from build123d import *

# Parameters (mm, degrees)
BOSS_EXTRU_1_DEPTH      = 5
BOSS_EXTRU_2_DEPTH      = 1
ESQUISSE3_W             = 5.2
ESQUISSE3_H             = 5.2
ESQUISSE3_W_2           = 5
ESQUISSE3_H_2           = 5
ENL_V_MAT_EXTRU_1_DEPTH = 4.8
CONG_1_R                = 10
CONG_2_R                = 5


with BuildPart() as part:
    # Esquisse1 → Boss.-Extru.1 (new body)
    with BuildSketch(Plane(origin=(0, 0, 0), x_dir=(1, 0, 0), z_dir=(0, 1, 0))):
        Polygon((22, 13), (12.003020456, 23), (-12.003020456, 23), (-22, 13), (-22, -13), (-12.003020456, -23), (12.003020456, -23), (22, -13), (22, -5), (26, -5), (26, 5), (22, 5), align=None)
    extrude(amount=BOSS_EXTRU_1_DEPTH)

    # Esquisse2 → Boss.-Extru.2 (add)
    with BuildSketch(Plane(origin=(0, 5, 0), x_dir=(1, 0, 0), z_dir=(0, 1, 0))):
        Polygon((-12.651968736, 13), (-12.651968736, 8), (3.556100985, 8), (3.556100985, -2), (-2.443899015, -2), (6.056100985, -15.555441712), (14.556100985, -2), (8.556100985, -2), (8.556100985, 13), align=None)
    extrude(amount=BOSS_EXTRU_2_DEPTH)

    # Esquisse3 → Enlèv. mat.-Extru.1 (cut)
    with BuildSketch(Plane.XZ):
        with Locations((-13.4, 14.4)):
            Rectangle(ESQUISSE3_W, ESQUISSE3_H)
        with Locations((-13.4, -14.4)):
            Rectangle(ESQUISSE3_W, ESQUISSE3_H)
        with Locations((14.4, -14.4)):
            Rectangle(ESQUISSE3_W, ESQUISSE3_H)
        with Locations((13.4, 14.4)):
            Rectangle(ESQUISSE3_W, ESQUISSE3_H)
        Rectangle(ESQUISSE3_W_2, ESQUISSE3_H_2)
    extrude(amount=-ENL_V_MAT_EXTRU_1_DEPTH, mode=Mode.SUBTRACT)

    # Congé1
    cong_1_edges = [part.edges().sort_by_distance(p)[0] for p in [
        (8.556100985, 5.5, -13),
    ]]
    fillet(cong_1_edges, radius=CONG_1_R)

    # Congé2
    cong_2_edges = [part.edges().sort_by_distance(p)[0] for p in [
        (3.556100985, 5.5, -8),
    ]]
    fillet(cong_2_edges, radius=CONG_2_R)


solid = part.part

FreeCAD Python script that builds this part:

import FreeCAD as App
import Part
import Sketcher
from FreeCAD import Vector
Q = App.Units.Quantity


def edges_at(feature, points):
    """Names of the edges that pass closest to the given points."""
    edges = feature.Shape.Edges
    near = lambda p: min(range(len(edges)), key=lambda i: edges[i].distToShape(Part.Vertex(*p))[0])
    return sorted({f"Edge{near(p) + 1}" for p in points})

doc = App.newDocument("Part")
params = doc.addObject("Spreadsheet::Sheet", "Params")
for row, (alias, value) in enumerate([
    ("sketch1_width", "4 mm"),
    ("sketch1_height", "26 mm"),
    ("sketch1_height2", "8 mm"),
    ("sketch1_length", "14.14 mm"),
    ("pad1_length", "5 mm"),
    ("sketch2_width", "6 mm"),
    ("sketch2_height", "5 mm"),
    ("sketch2_height2", "10 mm"),
    ("sketch2_length", "16 mm"),
    ("pad2_length", "1 mm"),
    ("sketch3_width", "5 mm"),
    ("sketch3_width2", "5.2 mm"),
    ("pocket1_length", "4.8 mm"),
    ("fillet_radius", "10 mm"),
    ("fillet2_radius", "5 mm"),
], start=1):
    params.set(f"A{row}", alias)
    params.set(f"B{row}", "=" + value)
    params.setAlias(f"B{row}", alias)

body = doc.addObject("PartDesign::Body", "Body")

sketch1 = body.newObject("Sketcher::SketchObject", "Sketch")
sketch1.AttachmentSupport = (doc.getObject("XZ_Plane"), [""])
sketch1.MapMode = "FlatFace"
sketch1.addGeometry(Part.LineSegment(Vector(22, -13, 0), Vector(12, -23, 0)), False)
sketch1.addGeometry(Part.LineSegment(Vector(12, -23, 0), Vector(-12, -23, 0)), False)
sketch1.addGeometry(Part.LineSegment(Vector(-12, -23, 0), Vector(-22, -13, 0)), False)
sketch1.addGeometry(Part.LineSegment(Vector(-22, -13, 0), Vector(-22, 13, 0)), False)
sketch1.addGeometry(Part.LineSegment(Vector(-22, 13, 0), Vector(-12, 23, 0)), False)
sketch1.addGeometry(Part.LineSegment(Vector(-12, 23, 0), Vector(12, 23, 0)), False)
sketch1.addGeometry(Part.LineSegment(Vector(12, 23, 0), Vector(22, 13, 0)), False)
sketch1.addGeometry(Part.LineSegment(Vector(22, 13, 0), Vector(22, 5, 0)), False)
sketch1.addGeometry(Part.LineSegment(Vector(22, 5, 0), Vector(26, 5, 0)), False)
sketch1.addGeometry(Part.LineSegment(Vector(26, 5, 0), Vector(26, -5, 0)), False)
sketch1.addGeometry(Part.LineSegment(Vector(26, -5, 0), Vector(22, -5, 0)), False)
sketch1.addGeometry(Part.LineSegment(Vector(22, -5, 0), Vector(22, -13, 0)), False)
sketch1.addConstraint(Sketcher.Constraint("Coincident", 0, 2, 1, 1))
sketch1.addConstraint(Sketcher.Constraint("Coincident", 1, 2, 2, 1))
sketch1.addConstraint(Sketcher.Constraint("Coincident", 2, 2, 3, 1))
sketch1.addConstraint(Sketcher.Constraint("Coincident", 3, 2, 4, 1))
sketch1.addConstraint(Sketcher.Constraint("Coincident", 4, 2, 5, 1))
sketch1.addConstraint(Sketcher.Constraint("Coincident", 5, 2, 6, 1))
sketch1.addConstraint(Sketcher.Constraint("Coincident", 6, 2, 7, 1))
sketch1.addConstraint(Sketcher.Constraint("Coincident", 7, 2, 8, 1))
sketch1.addConstraint(Sketcher.Constraint("Coincident", 8, 2, 9, 1))
sketch1.addConstraint(Sketcher.Constraint("Coincident", 9, 2, 10, 1))
sketch1.addConstraint(Sketcher.Constraint("Coincident", 10, 2, 11, 1))
sketch1.addConstraint(Sketcher.Constraint("Coincident", 11, 2, 0, 1))
sketch1.addConstraint(Sketcher.Constraint("Horizontal", 1))
sketch1.addConstraint(Sketcher.Constraint("Vertical", 3))
sketch1.addConstraint(Sketcher.Constraint("Horizontal", 5))
sketch1.addConstraint(Sketcher.Constraint("Vertical", 7))
sketch1.addConstraint(Sketcher.Constraint("Horizontal", 8))
sketch1.addConstraint(Sketcher.Constraint("Vertical", 9))
sketch1.addConstraint(Sketcher.Constraint("Horizontal", 10))
sketch1.addConstraint(Sketcher.Constraint("Vertical", 11))
sketch1.addConstraint(Sketcher.Constraint("Symmetric", 0, 2, 4, 2, -1, 1))
sketch1.addConstraint(Sketcher.Constraint("Symmetric", 2, 2, 6, 2, -1, 1))
sketch1.addConstraint(Sketcher.Constraint("Symmetric", 3, 2, 11, 2, -1, 1))
sketch1.addConstraint(Sketcher.Constraint("Parallel", 2, 6))
sketch1.addConstraint(Sketcher.Constraint("Horizontal", 3, 2, 6, 2))
sketch1.addConstraint(Sketcher.Constraint("Vertical", 1, 2, 4, 2))
sketch1.addConstraint(Sketcher.Constraint("Equal", 7, 11))
sketch1.addConstraint(Sketcher.Constraint("DistanceX", 8, 1, 8, 2, Q("4 mm")))
sketch1.addConstraint(Sketcher.Constraint("DistanceY", 3, 1, 3, 2, Q("26 mm")))
sketch1.addConstraint(Sketcher.Constraint("DistanceY", 7, 2, 7, 1, Q("8 mm")))
sketch1.addConstraint(Sketcher.Constraint("DistanceY", 0, 2, -1, 1, Q("23 mm")))
sketch1.addConstraint(Sketcher.Constraint("DistanceX", 2, 2, -1, 1, Q("22 mm")))
sketch1.addConstraint(Sketcher.Constraint("Distance", 0, Q("14.14 mm")))
sketch1.setExpression("Constraints[27]", "Params.sketch1_width")
sketch1.setExpression("Constraints[28]", "Params.sketch1_height")
sketch1.setExpression("Constraints[29]", "Params.sketch1_height2")
sketch1.setExpression("Constraints[32]", "Params.sketch1_length")
pad1 = body.newObject("PartDesign::Pad", "Pad")
pad1.Profile = sketch1
pad1.setExpression("Length", "Params.pad1_length")
pad1.Reversed = True

sketch2 = body.newObject("Sketcher::SketchObject", "Sketch001")
sketch2.AttachmentSupport = (doc.getObject("XZ_Plane"), [""])
sketch2.MapMode = "FlatFace"
sketch2.AttachmentOffset = App.Placement(Vector(0, 0, -5), App.Rotation())
sketch2.addGeometry(Part.LineSegment(Vector(-13, -13, 0), Vector(-13, -8, 0)), False)
sketch2.addGeometry(Part.LineSegment(Vector(-13, -8, 0), Vector(4, -8, 0)), False)
sketch2.addGeometry(Part.LineSegment(Vector(4, -8, 0), Vector(4, 2, 0)), False)
sketch2.addGeometry(Part.LineSegment(Vector(4, 2, 0), Vector(-2, 2, 0)), False)
sketch2.addGeometry(Part.LineSegment(Vector(-2, 2, 0), Vector(6, 16, 0)), False)
sketch2.addGeometry(Part.LineSegment(Vector(6, 16, 0), Vector(15, 2, 0)), False)
sketch2.addGeometry(Part.LineSegment(Vector(15, 2, 0), Vector(9, 2, 0)), False)
sketch2.addGeometry(Part.LineSegment(Vector(9, 2, 0), Vector(9, -13, 0)), False)
sketch2.addGeometry(Part.LineSegment(Vector(9, -13, 0), Vector(-13, -13, 0)), False)
sketch2.addConstraint(Sketcher.Constraint("Coincident", 0, 2, 1, 1))
sketch2.addConstraint(Sketcher.Constraint("Coincident", 1, 2, 2, 1))
sketch2.addConstraint(Sketcher.Constraint("Coincident", 2, 2, 3, 1))
sketch2.addConstraint(Sketcher.Constraint("Coincident", 3, 2, 4, 1))
sketch2.addConstraint(Sketcher.Constraint("Coincident", 4, 2, 5, 1))
sketch2.addConstraint(Sketcher.Constraint("Coincident", 5, 2, 6, 1))
sketch2.addConstraint(Sketcher.Constraint("Coincident", 6, 2, 7, 1))
sketch2.addConstraint(Sketcher.Constraint("Coincident", 7, 2, 8, 1))
sketch2.addConstraint(Sketcher.Constraint("Coincident", 8, 2, 0, 1))
sketch2.addConstraint(Sketcher.Constraint("Vertical", 0))
sketch2.addConstraint(Sketcher.Constraint("Horizontal", 1))
sketch2.addConstraint(Sketcher.Constraint("Vertical", 2))
sketch2.addConstraint(Sketcher.Constraint("Horizontal", 3))
sketch2.addConstraint(Sketcher.Constraint("Horizontal", 6))
sketch2.addConstraint(Sketcher.Constraint("Vertical", 7))
sketch2.addConstraint(Sketcher.Constraint("Horizontal", 8))
sketch2.addConstraint(Sketcher.Constraint("Horizontal", 3, 2, 5, 2))
sketch2.addConstraint(Sketcher.Constraint("Equal", 3, 6))
sketch2.addConstraint(Sketcher.Constraint("Equal", 4, 5))
sketch2.addConstraint(Sketcher.Constraint("DistanceX", 3, 2, 3, 1, Q("6 mm")))
sketch2.addConstraint(Sketcher.Constraint("DistanceY", 0, 1, 0, 2, Q("5 mm")))
sketch2.addConstraint(Sketcher.Constraint("DistanceY", 2, 1, 2, 2, Q("10 mm")))
sketch2.addConstraint(Sketcher.Constraint("Distance", 4, Q("16 mm")))
sketch2.addConstraint(Sketcher.Constraint("DistanceY", 0, 2, -1, 1, Q("8 mm")))
sketch2.addConstraint(Sketcher.Constraint("DistanceX", 2, 2, 5, 2, Q("11 mm")))
sketch2.addConstraint(Sketcher.Constraint("DistanceX", 1, 1, 1, 2, Q("16.20807 mm")))
sketch2.addConstraint(Sketcher.Constraint("DistanceX", -1, 1, 1, 2, Q("3.556101 mm")))
sketch2.setExpression("Constraints[19]", "Params.sketch2_width")
sketch2.setExpression("Constraints[20]", "Params.sketch2_height")
sketch2.setExpression("Constraints[21]", "Params.sketch2_height2")
sketch2.setExpression("Constraints[22]", "Params.sketch2_length")
pad2 = body.newObject("PartDesign::Pad", "Pad001")
pad2.Profile = sketch2
pad2.setExpression("Length", "Params.pad2_length")
pad2.Reversed = True

sketch3 = body.newObject("Sketcher::SketchObject", "Sketch002")
sketch3.AttachmentSupport = (doc.getObject("XZ_Plane"), [""])
sketch3.MapMode = "FlatFace"
sketch3.addGeometry(Part.LineSegment(Vector(-16, 17, 0), Vector(-16, 12, 0)), False)
sketch3.addGeometry(Part.LineSegment(Vector(-16, 12, 0), Vector(-11, 12, 0)), False)
sketch3.addGeometry(Part.LineSegment(Vector(-11, 12, 0), Vector(-11, 17, 0)), False)
sketch3.addGeometry(Part.LineSegment(Vector(-11, 17, 0), Vector(-16, 17, 0)), False)
sketch3.addGeometry(Part.LineSegment(Vector(-16, -12, 0), Vector(-16, -17, 0)), False)
sketch3.addGeometry(Part.LineSegment(Vector(-16, -17, 0), Vector(-11, -17, 0)), False)
sketch3.addGeometry(Part.LineSegment(Vector(-11, -17, 0), Vector(-11, -12, 0)), False)
sketch3.addGeometry(Part.LineSegment(Vector(-11, -12, 0), Vector(-16, -12, 0)), False)
sketch3.addGeometry(Part.LineSegment(Vector(12, -12, 0), Vector(12, -17, 0)), False)
sketch3.addGeometry(Part.LineSegment(Vector(12, -17, 0), Vector(17, -17, 0)), False)
sketch3.addGeometry(Part.LineSegment(Vector(17, -17, 0), Vector(17, -12, 0)), False)
sketch3.addGeometry(Part.LineSegment(Vector(17, -12, 0), Vector(12, -12, 0)), False)
sketch3.addGeometry(Part.LineSegment(Vector(11, 17, 0), Vector(11, 12, 0)), False)
sketch3.addGeometry(Part.LineSegment(Vector(11, 12, 0), Vector(16, 12, 0)), False)
sketch3.addGeometry(Part.LineSegment(Vector(16, 12, 0), Vector(16, 17, 0)), False)
sketch3.addGeometry(Part.LineSegment(Vector(16, 17, 0), Vector(11, 17, 0)), False)
sketch3.addGeometry(Part.LineSegment(Vector(-2, 2, 0), Vector(-2, -2, 0)), False)
sketch3.addGeometry(Part.LineSegment(Vector(-2, -2, 0), Vector(2, -2, 0)), False)
sketch3.addGeometry(Part.LineSegment(Vector(2, -2, 0), Vector(2, 2, 0)), False)
sketch3.addGeometry(Part.LineSegment(Vector(2, 2, 0), Vector(-2, 2, 0)), False)
sketch3.addConstraint(Sketcher.Constraint("Coincident", 0, 2, 1, 1))
sketch3.addConstraint(Sketcher.Constraint("Coincident", 1, 2, 2, 1))
sketch3.addConstraint(Sketcher.Constraint("Coincident", 2, 2, 3, 1))
sketch3.addConstraint(Sketcher.Constraint("Coincident", 3, 2, 0, 1))
sketch3.addConstraint(Sketcher.Constraint("Coincident", 4, 2, 5, 1))
sketch3.addConstraint(Sketcher.Constraint("Coincident", 5, 2, 6, 1))
sketch3.addConstraint(Sketcher.Constraint("Coincident", 6, 2, 7, 1))
sketch3.addConstraint(Sketcher.Constraint("Coincident", 7, 2, 4, 1))
sketch3.addConstraint(Sketcher.Constraint("Coincident", 8, 2, 9, 1))
sketch3.addConstraint(Sketcher.Constraint("Coincident", 9, 2, 10, 1))
sketch3.addConstraint(Sketcher.Constraint("Coincident", 10, 2, 11, 1))
sketch3.addConstraint(Sketcher.Constraint("Coincident", 11, 2, 8, 1))
sketch3.addConstraint(Sketcher.Constraint("Coincident", 12, 2, 13, 1))
sketch3.addConstraint(Sketcher.Constraint("Coincident", 13, 2, 14, 1))
sketch3.addConstraint(Sketcher.Constraint("Coincident", 14, 2, 15, 1))
sketch3.addConstraint(Sketcher.Constraint("Coincident", 15, 2, 12, 1))
sketch3.addConstraint(Sketcher.Constraint("Coincident", 16, 2, 17, 1))
sketch3.addConstraint(Sketcher.Constraint("Coincident", 17, 2, 18, 1))
sketch3.addConstraint(Sketcher.Constraint("Coincident", 18, 2, 19, 1))
sketch3.addConstraint(Sketcher.Constraint("Coincident", 19, 2, 16, 1))
sketch3.addConstraint(Sketcher.Constraint("Vertical", 0))
sketch3.addConstraint(Sketcher.Constraint("Horizontal", 1))
sketch3.addConstraint(Sketcher.Constraint("Vertical", 2))
sketch3.addConstraint(Sketcher.Constraint("Horizontal", 3))
sketch3.addConstraint(Sketcher.Constraint("Vertical", 4))
sketch3.addConstraint(Sketcher.Constraint("Horizontal", 5))
sketch3.addConstraint(Sketcher.Constraint("Vertical", 6))
sketch3.addConstraint(Sketcher.Constraint("Horizontal", 7))
sketch3.addConstraint(Sketcher.Constraint("Vertical", 8))
sketch3.addConstraint(Sketcher.Constraint("Horizontal", 9))
sketch3.addConstraint(Sketcher.Constraint("Vertical", 10))
sketch3.addConstraint(Sketcher.Constraint("Horizontal", 11))
sketch3.addConstraint(Sketcher.Constraint("Vertical", 12))
sketch3.addConstraint(Sketcher.Constraint("Horizontal", 13))
sketch3.addConstraint(Sketcher.Constraint("Vertical", 14))
sketch3.addConstraint(Sketcher.Constraint("Horizontal", 15))
sketch3.addConstraint(Sketcher.Constraint("Vertical", 16))
sketch3.addConstraint(Sketcher.Constraint("Horizontal", 17))
sketch3.addConstraint(Sketcher.Constraint("Vertical", 18))
sketch3.addConstraint(Sketcher.Constraint("Horizontal", 19))
sketch3.addConstraint(Sketcher.Constraint("Symmetric", 6, 2, 12, 2, -1, 1))
sketch3.addConstraint(Sketcher.Constraint("Symmetric", 4, 2, 14, 2, -1, 1))
sketch3.addConstraint(Sketcher.Constraint("Symmetric", 16, 2, 18, 2, -1, 1))
sketch3.addConstraint(Sketcher.Constraint("Symmetric", 1, 2, 12, 2, -2))
sketch3.addConstraint(Sketcher.Constraint("Symmetric", 3, 2, 14, 2, -2))
sketch3.addConstraint(Sketcher.Constraint("Horizontal", 5, 2, 8, 2))
sketch3.addConstraint(Sketcher.Constraint("Horizontal", 7, 2, 10, 2))
sketch3.addConstraint(Sketcher.Constraint("Equal", 7, 9))
sketch3.addConstraint(Sketcher.Constraint("Equal", 15, 0))
sketch3.addConstraint(Sketcher.Constraint("Equal", 19, 16))
sketch3.addConstraint(Sketcher.Constraint("DistanceX", 17, 1, 17, 2, Q("5 mm")))
sketch3.addConstraint(Sketcher.Constraint("DistanceX", 1, 1, 1, 2, Q("5.2 mm")))
sketch3.addConstraint(Sketcher.Constraint("DistanceX", 0, 2, -1, 1, Q("16 mm")))
sketch3.addConstraint(Sketcher.Constraint("DistanceY", -1, 1, 2, 2, Q("17 mm")))
sketch3.addConstraint(Sketcher.Constraint("DistanceX", -1, 1, 9, 2, Q("17 mm")))
sketch3.setExpression("Constraints[50]", "Params.sketch3_width")
sketch3.setExpression("Constraints[51]", "Params.sketch3_width2")
pocket1 = body.newObject("PartDesign::Pocket", "Pocket")
pocket1.Profile = sketch3
pocket1.setExpression("Length", "Params.pocket1_length")
doc.recompute()

fillet = body.newObject("PartDesign::Fillet", "Fillet")
fillet.Base = (pocket1, edges_at(pocket1, [(8.556, 5.5, -13)]))
fillet.setExpression("Radius", "Params.fillet_radius")
doc.recompute()

fillet2 = body.newObject("PartDesign::Fillet", "Fillet001")
fillet2.Base = (fillet, edges_at(fillet, [(3.556, 5.5, -8)]))
fillet2.setExpression("Radius", "Params.fillet2_radius")

doc.recompute()
